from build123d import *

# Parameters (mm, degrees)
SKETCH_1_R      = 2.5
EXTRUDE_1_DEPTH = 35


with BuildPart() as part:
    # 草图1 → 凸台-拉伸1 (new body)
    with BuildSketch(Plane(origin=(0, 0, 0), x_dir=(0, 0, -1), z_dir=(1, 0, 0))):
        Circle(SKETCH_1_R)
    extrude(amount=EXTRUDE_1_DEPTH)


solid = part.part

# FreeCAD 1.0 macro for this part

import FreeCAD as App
import Part
import Sketcher

V = App.Vector

doc = App.newDocument("Part")
body = doc.addObject("PartDesign::Body", "Body")

sketch1 = body.newObject("Sketcher::SketchObject", "Sketch")
sketch1.AttachmentSupport = (doc.getObject("YZ_Plane"), [""])
sketch1.MapMode = "FlatFace"
sketch1.addGeometry(Part.Circle(V(0, 0, 0), V(0, 0, 1), 2.5), False)
sketch1.addConstraint(Sketcher.Constraint("Coincident", 0, 3, -1, 1))
sketch1.addConstraint(Sketcher.Constraint("Diameter", 0, 5.0))
pad1 = body.newObject("PartDesign::Pad", "Pad")
pad1.Profile = sketch1
pad1.Length = 35

doc.recompute()
